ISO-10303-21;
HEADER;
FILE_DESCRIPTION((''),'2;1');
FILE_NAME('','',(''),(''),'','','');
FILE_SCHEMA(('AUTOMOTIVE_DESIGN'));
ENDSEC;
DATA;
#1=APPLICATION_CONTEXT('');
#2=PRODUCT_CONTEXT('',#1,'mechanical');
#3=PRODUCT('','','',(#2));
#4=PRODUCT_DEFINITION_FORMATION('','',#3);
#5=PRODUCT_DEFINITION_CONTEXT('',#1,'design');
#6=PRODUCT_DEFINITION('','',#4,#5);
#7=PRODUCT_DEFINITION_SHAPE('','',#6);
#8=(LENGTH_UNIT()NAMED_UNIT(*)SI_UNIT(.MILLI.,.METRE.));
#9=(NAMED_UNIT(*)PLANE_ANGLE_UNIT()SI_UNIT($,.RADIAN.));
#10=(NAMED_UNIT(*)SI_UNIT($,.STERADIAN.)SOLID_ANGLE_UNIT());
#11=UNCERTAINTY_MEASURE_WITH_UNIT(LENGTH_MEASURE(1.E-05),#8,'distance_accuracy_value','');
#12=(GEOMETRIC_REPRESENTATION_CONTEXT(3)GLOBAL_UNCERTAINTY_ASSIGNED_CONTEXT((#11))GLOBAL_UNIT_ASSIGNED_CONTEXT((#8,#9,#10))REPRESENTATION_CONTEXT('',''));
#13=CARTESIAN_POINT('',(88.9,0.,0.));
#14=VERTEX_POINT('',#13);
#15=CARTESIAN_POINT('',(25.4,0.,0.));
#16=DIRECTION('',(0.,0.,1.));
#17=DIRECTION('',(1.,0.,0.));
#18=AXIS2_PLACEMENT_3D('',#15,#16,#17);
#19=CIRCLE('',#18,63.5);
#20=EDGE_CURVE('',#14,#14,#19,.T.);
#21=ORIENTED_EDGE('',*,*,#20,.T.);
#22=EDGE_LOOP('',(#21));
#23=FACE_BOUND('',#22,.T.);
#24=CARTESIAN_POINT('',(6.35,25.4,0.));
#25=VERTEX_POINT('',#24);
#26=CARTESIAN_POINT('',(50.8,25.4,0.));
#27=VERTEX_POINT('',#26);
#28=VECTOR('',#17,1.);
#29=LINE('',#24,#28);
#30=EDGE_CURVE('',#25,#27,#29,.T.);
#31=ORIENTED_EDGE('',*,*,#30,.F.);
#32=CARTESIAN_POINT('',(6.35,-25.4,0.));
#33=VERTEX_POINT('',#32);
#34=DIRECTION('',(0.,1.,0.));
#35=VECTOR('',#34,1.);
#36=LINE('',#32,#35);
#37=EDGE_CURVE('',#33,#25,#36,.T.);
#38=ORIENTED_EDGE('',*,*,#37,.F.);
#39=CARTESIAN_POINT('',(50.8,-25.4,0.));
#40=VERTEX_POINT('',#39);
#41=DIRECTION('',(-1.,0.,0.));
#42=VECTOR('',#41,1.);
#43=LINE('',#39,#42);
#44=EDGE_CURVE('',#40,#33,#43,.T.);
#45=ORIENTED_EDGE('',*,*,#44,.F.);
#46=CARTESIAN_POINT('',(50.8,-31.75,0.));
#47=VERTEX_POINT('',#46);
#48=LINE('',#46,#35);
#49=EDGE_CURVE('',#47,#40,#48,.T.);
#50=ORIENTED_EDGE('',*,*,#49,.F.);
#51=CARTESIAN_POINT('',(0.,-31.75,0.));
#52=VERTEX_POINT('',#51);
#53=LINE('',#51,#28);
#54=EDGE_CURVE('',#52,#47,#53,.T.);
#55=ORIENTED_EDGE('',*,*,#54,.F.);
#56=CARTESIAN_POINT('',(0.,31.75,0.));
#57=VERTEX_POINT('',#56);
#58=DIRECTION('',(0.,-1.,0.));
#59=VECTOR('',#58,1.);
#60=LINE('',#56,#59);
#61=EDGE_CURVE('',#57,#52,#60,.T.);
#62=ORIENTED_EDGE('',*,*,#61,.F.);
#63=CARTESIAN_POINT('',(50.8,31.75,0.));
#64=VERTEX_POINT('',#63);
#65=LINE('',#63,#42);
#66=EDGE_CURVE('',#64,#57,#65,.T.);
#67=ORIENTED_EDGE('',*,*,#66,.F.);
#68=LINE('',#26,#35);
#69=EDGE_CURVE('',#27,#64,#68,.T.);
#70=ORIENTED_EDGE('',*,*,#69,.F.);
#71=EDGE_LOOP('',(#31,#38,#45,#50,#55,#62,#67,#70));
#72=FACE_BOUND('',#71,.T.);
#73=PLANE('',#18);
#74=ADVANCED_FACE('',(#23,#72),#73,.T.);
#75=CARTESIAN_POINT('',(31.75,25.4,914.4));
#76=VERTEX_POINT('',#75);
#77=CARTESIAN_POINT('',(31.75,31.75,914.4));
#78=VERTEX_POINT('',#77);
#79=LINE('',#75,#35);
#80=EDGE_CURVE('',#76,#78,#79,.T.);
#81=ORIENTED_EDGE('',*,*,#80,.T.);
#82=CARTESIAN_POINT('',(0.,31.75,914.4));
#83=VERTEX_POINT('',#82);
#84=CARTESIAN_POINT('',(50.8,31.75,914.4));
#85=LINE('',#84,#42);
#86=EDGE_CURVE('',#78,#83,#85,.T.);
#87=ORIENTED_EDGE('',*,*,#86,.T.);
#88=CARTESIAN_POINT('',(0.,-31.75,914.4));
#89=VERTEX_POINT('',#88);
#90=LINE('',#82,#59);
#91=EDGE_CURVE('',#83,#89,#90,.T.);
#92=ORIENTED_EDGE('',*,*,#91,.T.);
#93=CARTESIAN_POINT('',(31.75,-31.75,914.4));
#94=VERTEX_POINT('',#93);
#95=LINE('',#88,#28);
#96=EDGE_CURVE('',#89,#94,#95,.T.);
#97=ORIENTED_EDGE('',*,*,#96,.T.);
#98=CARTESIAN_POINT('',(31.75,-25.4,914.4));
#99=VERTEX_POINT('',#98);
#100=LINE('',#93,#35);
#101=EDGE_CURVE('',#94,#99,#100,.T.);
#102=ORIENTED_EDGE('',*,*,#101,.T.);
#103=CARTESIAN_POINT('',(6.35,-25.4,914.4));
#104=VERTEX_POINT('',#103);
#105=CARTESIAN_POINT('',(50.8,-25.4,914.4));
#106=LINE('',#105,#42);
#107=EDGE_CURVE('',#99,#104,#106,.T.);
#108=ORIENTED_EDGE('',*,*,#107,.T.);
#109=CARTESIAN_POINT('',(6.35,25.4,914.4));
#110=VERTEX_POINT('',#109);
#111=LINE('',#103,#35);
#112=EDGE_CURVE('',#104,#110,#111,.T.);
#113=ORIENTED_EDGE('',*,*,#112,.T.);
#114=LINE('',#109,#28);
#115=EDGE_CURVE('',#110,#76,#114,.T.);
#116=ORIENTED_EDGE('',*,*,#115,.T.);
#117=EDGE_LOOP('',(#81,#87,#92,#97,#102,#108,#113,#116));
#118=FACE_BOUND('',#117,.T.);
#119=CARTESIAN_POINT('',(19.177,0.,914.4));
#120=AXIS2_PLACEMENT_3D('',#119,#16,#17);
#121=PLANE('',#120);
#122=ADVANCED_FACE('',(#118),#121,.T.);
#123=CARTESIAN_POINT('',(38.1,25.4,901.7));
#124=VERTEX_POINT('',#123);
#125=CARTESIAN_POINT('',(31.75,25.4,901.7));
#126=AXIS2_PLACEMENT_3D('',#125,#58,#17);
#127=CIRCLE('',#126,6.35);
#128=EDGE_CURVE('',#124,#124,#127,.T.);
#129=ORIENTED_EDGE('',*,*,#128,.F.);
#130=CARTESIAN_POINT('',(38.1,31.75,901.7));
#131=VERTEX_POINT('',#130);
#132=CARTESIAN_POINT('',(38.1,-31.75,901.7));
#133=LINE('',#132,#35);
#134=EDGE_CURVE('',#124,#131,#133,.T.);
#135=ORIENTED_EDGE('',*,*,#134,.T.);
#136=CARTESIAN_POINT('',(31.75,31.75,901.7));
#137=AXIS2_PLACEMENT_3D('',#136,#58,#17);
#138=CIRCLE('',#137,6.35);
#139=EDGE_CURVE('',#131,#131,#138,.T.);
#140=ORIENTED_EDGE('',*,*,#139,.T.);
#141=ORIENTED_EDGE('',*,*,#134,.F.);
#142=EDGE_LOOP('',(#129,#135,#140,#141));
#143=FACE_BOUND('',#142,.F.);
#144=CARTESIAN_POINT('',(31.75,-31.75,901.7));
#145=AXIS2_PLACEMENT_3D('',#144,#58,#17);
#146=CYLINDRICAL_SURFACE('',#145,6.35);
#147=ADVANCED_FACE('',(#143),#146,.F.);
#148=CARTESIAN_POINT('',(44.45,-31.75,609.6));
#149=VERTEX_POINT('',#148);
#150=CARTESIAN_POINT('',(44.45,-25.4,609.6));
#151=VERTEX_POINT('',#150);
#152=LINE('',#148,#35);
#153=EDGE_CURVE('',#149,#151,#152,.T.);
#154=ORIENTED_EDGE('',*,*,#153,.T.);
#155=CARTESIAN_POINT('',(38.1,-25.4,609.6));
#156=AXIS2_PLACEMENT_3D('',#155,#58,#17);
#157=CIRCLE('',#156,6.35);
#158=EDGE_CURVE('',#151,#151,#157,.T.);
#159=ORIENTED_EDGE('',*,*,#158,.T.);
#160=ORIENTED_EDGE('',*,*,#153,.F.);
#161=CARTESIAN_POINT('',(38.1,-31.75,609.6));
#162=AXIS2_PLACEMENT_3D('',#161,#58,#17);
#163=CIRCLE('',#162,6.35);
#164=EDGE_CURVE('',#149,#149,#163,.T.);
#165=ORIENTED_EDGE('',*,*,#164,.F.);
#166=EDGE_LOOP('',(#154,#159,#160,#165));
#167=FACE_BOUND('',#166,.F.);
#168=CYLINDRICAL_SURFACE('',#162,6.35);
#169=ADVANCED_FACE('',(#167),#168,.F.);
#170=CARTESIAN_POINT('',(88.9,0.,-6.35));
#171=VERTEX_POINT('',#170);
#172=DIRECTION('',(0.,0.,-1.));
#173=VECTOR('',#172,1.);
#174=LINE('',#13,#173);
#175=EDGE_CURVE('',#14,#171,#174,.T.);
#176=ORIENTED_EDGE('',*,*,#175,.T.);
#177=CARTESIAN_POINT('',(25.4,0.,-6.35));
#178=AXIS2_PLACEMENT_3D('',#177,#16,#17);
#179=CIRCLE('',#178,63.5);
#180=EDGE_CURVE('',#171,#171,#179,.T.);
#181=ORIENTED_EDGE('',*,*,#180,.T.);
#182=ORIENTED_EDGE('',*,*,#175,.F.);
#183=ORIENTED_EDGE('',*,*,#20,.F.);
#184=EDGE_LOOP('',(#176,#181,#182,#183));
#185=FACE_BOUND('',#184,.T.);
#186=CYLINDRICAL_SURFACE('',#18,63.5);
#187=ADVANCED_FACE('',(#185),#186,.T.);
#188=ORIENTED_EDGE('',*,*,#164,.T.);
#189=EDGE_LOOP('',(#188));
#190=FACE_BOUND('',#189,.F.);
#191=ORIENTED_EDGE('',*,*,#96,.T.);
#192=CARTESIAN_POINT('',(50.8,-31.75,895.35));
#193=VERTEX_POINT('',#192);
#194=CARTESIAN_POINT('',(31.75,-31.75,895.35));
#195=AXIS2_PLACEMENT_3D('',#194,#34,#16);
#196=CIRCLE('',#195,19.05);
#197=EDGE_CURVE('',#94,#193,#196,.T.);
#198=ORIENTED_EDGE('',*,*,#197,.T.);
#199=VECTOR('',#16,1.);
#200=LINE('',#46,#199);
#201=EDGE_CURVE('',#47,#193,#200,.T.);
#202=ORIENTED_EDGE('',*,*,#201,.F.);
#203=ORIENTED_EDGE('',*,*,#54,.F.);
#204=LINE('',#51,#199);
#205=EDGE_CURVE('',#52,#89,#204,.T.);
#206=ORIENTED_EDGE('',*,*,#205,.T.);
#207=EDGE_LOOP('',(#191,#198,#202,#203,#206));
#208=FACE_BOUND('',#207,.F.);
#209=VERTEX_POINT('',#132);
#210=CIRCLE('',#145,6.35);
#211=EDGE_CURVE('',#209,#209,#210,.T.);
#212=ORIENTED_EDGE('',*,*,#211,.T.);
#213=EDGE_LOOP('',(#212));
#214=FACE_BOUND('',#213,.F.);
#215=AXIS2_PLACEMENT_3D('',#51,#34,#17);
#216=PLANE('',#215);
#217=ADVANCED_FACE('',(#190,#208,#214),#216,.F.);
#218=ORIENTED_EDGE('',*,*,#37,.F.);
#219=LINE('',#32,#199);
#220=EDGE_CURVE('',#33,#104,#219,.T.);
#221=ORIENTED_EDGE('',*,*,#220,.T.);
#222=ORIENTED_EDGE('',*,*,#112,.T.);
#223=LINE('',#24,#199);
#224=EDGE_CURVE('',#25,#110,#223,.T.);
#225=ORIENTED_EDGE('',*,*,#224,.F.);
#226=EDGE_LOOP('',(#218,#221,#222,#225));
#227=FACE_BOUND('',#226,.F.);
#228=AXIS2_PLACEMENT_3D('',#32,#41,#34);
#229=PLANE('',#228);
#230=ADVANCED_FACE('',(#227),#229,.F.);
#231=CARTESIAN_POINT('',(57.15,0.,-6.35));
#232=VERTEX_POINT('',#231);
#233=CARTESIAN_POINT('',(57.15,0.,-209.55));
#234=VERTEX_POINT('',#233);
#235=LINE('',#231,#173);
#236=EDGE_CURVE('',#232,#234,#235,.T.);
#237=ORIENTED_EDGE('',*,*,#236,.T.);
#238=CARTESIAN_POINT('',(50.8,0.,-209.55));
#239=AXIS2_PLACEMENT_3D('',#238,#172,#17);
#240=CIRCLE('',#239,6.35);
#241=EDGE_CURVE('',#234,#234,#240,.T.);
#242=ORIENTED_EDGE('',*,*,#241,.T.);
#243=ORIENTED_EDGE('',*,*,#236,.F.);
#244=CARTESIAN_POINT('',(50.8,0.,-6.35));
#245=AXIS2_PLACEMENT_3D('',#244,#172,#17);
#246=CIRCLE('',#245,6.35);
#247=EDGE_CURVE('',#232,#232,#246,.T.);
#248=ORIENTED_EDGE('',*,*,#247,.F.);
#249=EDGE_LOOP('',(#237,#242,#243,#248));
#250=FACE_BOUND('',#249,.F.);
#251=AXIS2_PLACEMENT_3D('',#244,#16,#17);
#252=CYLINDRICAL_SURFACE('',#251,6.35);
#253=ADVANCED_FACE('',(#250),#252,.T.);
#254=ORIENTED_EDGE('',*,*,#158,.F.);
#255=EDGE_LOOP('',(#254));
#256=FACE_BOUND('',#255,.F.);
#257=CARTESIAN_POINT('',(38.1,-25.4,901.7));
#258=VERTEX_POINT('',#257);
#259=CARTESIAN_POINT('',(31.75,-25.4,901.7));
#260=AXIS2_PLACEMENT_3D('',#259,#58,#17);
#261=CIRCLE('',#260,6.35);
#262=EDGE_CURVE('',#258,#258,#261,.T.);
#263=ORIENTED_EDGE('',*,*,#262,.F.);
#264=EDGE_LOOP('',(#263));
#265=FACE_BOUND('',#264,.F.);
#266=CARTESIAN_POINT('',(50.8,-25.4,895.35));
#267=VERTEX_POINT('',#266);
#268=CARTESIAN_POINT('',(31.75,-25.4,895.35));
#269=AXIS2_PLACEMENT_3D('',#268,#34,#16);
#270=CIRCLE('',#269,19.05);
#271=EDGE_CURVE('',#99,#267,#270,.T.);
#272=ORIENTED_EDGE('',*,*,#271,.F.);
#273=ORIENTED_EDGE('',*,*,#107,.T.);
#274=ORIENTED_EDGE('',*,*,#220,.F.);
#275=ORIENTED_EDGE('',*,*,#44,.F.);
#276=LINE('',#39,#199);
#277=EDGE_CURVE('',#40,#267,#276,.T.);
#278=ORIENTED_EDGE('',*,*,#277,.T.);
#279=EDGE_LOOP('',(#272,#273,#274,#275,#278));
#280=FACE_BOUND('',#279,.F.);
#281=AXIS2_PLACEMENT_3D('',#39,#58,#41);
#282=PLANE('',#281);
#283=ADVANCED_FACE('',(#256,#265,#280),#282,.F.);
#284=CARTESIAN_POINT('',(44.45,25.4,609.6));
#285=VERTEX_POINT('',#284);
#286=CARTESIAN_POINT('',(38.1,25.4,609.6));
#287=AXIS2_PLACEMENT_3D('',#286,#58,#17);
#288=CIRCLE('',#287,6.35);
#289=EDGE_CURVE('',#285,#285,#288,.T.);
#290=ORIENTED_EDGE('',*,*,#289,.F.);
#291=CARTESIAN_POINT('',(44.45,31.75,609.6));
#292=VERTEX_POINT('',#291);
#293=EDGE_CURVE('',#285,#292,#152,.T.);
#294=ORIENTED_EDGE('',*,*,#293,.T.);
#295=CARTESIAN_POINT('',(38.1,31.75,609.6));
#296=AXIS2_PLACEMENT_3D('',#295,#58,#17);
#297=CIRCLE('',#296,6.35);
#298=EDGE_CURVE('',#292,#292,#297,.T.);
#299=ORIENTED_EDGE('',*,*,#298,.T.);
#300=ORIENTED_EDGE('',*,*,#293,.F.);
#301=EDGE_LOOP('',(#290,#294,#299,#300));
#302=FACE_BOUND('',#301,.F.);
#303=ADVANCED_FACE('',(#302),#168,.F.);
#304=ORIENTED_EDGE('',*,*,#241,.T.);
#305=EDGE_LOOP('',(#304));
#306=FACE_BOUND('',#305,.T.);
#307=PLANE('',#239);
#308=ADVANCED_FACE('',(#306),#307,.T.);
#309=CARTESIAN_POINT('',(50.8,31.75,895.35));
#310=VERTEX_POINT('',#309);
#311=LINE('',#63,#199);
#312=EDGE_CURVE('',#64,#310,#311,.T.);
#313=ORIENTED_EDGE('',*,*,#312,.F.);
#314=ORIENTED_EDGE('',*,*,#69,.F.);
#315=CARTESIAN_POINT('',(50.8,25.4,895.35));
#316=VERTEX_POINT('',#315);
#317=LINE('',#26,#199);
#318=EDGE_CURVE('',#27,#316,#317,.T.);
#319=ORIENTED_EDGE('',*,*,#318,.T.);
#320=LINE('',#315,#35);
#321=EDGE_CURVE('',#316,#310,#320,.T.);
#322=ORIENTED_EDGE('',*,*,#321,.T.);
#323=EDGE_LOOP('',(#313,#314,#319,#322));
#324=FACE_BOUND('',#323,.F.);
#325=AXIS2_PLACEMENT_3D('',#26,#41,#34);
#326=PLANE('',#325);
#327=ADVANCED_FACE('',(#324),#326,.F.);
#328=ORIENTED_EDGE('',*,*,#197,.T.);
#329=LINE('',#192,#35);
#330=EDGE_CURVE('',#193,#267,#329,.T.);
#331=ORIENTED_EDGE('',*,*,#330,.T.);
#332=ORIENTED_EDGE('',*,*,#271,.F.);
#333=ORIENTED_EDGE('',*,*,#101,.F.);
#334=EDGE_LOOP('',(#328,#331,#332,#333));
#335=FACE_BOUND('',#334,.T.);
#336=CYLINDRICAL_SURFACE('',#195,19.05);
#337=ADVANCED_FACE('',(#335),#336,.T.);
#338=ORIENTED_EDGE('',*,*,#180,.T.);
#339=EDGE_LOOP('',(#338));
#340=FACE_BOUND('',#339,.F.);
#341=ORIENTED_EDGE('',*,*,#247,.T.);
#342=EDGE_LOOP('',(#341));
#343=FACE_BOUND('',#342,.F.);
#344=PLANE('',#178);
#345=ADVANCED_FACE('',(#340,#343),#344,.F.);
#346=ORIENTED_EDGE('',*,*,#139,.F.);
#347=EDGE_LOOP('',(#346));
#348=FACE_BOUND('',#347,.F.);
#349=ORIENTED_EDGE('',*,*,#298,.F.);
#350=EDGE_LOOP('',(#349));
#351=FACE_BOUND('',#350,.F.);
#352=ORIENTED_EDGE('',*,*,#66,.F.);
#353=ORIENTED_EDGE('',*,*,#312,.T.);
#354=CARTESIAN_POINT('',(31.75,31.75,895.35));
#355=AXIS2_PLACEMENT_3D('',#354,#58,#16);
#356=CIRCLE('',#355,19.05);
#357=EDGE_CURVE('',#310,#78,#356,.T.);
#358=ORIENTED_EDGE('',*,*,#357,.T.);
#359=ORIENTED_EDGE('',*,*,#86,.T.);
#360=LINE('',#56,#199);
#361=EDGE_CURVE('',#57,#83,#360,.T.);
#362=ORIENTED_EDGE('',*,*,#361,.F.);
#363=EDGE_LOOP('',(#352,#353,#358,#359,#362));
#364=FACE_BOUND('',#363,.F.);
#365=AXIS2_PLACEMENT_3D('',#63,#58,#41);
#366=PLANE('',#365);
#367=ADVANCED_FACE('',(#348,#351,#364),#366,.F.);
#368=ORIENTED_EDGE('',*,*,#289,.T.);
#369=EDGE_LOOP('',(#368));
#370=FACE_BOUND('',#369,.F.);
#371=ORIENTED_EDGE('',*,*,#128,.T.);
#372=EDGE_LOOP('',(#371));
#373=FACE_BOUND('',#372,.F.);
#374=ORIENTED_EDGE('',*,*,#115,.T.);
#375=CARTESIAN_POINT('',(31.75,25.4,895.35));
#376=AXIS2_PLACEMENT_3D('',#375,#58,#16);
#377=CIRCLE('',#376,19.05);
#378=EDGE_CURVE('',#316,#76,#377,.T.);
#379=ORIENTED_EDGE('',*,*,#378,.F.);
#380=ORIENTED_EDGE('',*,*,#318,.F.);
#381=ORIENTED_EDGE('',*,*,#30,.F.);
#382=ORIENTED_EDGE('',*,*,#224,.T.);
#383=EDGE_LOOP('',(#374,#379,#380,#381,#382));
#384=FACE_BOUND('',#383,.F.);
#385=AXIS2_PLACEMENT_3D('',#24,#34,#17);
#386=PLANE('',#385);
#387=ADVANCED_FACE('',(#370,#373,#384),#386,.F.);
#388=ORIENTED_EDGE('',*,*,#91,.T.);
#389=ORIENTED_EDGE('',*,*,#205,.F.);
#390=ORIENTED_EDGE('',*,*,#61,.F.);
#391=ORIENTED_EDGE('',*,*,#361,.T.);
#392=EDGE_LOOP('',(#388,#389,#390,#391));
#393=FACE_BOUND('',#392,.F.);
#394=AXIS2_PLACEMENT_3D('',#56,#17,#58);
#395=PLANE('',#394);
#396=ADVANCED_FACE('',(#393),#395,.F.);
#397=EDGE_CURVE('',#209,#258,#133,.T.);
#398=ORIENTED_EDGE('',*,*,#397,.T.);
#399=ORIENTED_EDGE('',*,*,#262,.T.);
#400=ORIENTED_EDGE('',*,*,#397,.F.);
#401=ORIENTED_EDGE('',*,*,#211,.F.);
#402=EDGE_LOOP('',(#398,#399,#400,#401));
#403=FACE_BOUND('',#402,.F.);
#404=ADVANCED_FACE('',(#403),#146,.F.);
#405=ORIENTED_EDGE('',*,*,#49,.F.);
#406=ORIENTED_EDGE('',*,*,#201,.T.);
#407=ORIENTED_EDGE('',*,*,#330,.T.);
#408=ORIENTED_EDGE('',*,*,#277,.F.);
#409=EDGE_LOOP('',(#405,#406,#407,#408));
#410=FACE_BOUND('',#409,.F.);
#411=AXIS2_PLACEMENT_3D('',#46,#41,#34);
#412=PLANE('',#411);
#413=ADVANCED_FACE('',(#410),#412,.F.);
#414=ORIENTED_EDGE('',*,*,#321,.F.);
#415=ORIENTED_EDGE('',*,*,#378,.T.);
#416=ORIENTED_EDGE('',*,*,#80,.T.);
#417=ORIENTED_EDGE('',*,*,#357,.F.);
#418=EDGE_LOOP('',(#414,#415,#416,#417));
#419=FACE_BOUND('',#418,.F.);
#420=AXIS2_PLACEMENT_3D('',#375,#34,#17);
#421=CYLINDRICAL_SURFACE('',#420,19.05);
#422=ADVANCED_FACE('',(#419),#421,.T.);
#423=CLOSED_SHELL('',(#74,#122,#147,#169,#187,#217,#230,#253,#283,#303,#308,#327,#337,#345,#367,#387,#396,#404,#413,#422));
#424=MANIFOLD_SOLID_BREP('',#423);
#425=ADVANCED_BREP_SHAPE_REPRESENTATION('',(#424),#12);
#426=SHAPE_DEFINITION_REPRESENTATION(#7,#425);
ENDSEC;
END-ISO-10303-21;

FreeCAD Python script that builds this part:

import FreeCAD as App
import Part
import Sketcher

V = App.Vector
Q = App.Units.Quantity


def edges_at(feature, points):
    """Names of the edges that pass closest to the given points."""
    edges = feature.Shape.Edges
    near = lambda p: min(range(len(edges)), key=lambda i: edges[i].distToShape(Part.Vertex(*p))[0])
    return sorted({f"Edge{near(p) + 1}" for p in points})


def add_polygon(sketch, points):
    """Adds a closed chain of lines whose ends are joined by coincident constraints."""
    first, n = sketch.GeometryCount, len(points)
    for a, b in zip(points, points[1:] + points[:1]):
        sketch.addGeometry(Part.LineSegment(App.Vector(*a, 0), App.Vector(*b, 0)), False)
    for i in range(n):
        sketch.addConstraint(Sketcher.Constraint("Coincident", first + i, 2, first + (i + 1) % n, 1))

doc = App.newDocument("Part")
body = doc.addObject("PartDesign::Body", "Body")

sketch1 = body.newObject("Sketcher::SketchObject", "Sketch")
sketch1.AttachmentSupport = (doc.getObject("XY_Plane"), [""])
sketch1.MapMode = "FlatFace"
add_polygon(sketch1, [(51, 32), (0, 32), (0, -32), (51, -32), (51, -25), (6, -25), (6, 25), (51, 25)])
sketch1.addConstraint(Sketcher.Constraint("Horizontal", 0))
sketch1.addConstraint(Sketcher.Constraint("Vertical", 1))
sketch1.addConstraint(Sketcher.Constraint("Horizontal", 2))
sketch1.addConstraint(Sketcher.Constraint("Vertical", 3))
sketch1.addConstraint(Sketcher.Constraint("Horizontal", 4))
sketch1.addConstraint(Sketcher.Constraint("Vertical", 5))
sketch1.addConstraint(Sketcher.Constraint("Horizontal", 6))
sketch1.addConstraint(Sketcher.Constraint("Vertical", 7))
sketch1.addConstraint(Sketcher.Constraint("Symmetric", 0, 2, 1, 2, -1, 1))
sketch1.addConstraint(Sketcher.Constraint("Symmetric", 3, 2, 6, 2, -1))
sketch1.addConstraint(Sketcher.Constraint("Equal", 2, 5))
sketch1.addConstraint(Sketcher.Constraint("DistanceX", 0, 2, 0, 1, Q("2 in")))
sketch1.addConstraint(Sketcher.Constraint("DistanceY", 1, 2, 1, 1, Q("2.5 in")))
sketch1.addConstraint(Sketcher.Constraint("DistanceX", 4, 2, 4, 1, Q("1.75 in")))
pad1 = body.newObject("PartDesign::Pad", "Pad")
pad1.Profile = sketch1
pad1.Length = Q("36 in")

sketch2 = body.newObject("Sketcher::SketchObject", "Sketch001")
sketch2.AttachmentSupport = (doc.getObject("XZ_Plane"), [""])
sketch2.MapMode = "FlatFace"
sketch2.AttachmentOffset = App.Placement(V(0, 0, 1.25 * 25.4), App.Rotation())
sketch2.addGeometry(Part.Circle(V(32, 902, 0), V(0, 0, 1), 6), False)
sketch2.addGeometry(Part.Circle(V(38, 610, 0), V(0, 0, 1), 6), False)
sketch2.addConstraint(Sketcher.Constraint("Equal", 0, 1))
sketch2.addConstraint(Sketcher.Constraint("Diameter", 0, Q("0.5 in")))
sketch2.addConstraint(Sketcher.Constraint("DistanceY", -1, 1, 1, 3, Q("24 in")))
sketch2.addConstraint(Sketcher.Constraint("DistanceY", -1, 1, 0, 3, Q("35.5 in")))
sketch2.addConstraint(Sketcher.Constraint("DistanceX", -1, 1, 1, 3, Q("1.5 in")))
sketch2.addConstraint(Sketcher.Constraint("DistanceX", -1, 1, 0, 3, Q("1.25 in")))
pocket1 = body.newObject("PartDesign::Pocket", "Pocket")
pocket1.Profile = sketch2
pocket1.Type = "ThroughAll"
doc.recompute()

fillet = body.newObject("PartDesign::Fillet", "Fillet")
fillet.Base = (pocket1, edges_at(pocket1, [(50.8, -28.575, 914.4), (50.8, 28.575, 914.4)]))
fillet.Radius = Q("0.75 in")

sketch3 = body.newObject("Sketcher::SketchObject", "Sketch002")
sketch3.AttachmentSupport = (doc.getObject("XY_Plane"), [""])
sketch3.MapMode = "FlatFace"
sketch3.addGeometry(Part.Circle(V(25, 0, 0), V(0, 0, 1), 64), False)
sketch3.addConstraint(Sketcher.Constraint("PointOnObject", 0, 3, -1))
sketch3.addConstraint(Sketcher.Constraint("Diameter", 0, Q("5 in")))
sketch3.addConstraint(Sketcher.Constraint("DistanceX", -1, 1, 0, 3, Q("1 in")))
pad2 = body.newObject("PartDesign::Pad", "Pad001")
pad2.Profile = sketch3
pad2.Length = Q("0.25 in")
pad2.Reversed = True

sketch4 = body.newObject("Sketcher::SketchObject", "Sketch003")
sketch4.AttachmentSupport = (doc.getObject("XY_Plane"), [""])
sketch4.MapMode = "FlatFace"
sketch4.AttachmentOffset = App.Placement(V(0, 0, -0.25 * 25.4), App.Rotation())
sketch4.addGeometry(Part.Circle(V(51, 0, 0), V(0, 0, 1), 6), False)
sketch4.addConstraint(Sketcher.Constraint("PointOnObject", 0, 3, -1))
sketch4.addConstraint(Sketcher.Constraint("Diameter", 0, Q("0.5 in")))
sketch4.addConstraint(Sketcher.Constraint("DistanceX", -1, 1, 0, 3, Q("2 in")))
pad3 = body.newObject("PartDesign::Pad", "Pad002")
pad3.Profile = sketch4
pad3.Length = Q("8 in")
pad3.Reversed = True

doc.recompute()
